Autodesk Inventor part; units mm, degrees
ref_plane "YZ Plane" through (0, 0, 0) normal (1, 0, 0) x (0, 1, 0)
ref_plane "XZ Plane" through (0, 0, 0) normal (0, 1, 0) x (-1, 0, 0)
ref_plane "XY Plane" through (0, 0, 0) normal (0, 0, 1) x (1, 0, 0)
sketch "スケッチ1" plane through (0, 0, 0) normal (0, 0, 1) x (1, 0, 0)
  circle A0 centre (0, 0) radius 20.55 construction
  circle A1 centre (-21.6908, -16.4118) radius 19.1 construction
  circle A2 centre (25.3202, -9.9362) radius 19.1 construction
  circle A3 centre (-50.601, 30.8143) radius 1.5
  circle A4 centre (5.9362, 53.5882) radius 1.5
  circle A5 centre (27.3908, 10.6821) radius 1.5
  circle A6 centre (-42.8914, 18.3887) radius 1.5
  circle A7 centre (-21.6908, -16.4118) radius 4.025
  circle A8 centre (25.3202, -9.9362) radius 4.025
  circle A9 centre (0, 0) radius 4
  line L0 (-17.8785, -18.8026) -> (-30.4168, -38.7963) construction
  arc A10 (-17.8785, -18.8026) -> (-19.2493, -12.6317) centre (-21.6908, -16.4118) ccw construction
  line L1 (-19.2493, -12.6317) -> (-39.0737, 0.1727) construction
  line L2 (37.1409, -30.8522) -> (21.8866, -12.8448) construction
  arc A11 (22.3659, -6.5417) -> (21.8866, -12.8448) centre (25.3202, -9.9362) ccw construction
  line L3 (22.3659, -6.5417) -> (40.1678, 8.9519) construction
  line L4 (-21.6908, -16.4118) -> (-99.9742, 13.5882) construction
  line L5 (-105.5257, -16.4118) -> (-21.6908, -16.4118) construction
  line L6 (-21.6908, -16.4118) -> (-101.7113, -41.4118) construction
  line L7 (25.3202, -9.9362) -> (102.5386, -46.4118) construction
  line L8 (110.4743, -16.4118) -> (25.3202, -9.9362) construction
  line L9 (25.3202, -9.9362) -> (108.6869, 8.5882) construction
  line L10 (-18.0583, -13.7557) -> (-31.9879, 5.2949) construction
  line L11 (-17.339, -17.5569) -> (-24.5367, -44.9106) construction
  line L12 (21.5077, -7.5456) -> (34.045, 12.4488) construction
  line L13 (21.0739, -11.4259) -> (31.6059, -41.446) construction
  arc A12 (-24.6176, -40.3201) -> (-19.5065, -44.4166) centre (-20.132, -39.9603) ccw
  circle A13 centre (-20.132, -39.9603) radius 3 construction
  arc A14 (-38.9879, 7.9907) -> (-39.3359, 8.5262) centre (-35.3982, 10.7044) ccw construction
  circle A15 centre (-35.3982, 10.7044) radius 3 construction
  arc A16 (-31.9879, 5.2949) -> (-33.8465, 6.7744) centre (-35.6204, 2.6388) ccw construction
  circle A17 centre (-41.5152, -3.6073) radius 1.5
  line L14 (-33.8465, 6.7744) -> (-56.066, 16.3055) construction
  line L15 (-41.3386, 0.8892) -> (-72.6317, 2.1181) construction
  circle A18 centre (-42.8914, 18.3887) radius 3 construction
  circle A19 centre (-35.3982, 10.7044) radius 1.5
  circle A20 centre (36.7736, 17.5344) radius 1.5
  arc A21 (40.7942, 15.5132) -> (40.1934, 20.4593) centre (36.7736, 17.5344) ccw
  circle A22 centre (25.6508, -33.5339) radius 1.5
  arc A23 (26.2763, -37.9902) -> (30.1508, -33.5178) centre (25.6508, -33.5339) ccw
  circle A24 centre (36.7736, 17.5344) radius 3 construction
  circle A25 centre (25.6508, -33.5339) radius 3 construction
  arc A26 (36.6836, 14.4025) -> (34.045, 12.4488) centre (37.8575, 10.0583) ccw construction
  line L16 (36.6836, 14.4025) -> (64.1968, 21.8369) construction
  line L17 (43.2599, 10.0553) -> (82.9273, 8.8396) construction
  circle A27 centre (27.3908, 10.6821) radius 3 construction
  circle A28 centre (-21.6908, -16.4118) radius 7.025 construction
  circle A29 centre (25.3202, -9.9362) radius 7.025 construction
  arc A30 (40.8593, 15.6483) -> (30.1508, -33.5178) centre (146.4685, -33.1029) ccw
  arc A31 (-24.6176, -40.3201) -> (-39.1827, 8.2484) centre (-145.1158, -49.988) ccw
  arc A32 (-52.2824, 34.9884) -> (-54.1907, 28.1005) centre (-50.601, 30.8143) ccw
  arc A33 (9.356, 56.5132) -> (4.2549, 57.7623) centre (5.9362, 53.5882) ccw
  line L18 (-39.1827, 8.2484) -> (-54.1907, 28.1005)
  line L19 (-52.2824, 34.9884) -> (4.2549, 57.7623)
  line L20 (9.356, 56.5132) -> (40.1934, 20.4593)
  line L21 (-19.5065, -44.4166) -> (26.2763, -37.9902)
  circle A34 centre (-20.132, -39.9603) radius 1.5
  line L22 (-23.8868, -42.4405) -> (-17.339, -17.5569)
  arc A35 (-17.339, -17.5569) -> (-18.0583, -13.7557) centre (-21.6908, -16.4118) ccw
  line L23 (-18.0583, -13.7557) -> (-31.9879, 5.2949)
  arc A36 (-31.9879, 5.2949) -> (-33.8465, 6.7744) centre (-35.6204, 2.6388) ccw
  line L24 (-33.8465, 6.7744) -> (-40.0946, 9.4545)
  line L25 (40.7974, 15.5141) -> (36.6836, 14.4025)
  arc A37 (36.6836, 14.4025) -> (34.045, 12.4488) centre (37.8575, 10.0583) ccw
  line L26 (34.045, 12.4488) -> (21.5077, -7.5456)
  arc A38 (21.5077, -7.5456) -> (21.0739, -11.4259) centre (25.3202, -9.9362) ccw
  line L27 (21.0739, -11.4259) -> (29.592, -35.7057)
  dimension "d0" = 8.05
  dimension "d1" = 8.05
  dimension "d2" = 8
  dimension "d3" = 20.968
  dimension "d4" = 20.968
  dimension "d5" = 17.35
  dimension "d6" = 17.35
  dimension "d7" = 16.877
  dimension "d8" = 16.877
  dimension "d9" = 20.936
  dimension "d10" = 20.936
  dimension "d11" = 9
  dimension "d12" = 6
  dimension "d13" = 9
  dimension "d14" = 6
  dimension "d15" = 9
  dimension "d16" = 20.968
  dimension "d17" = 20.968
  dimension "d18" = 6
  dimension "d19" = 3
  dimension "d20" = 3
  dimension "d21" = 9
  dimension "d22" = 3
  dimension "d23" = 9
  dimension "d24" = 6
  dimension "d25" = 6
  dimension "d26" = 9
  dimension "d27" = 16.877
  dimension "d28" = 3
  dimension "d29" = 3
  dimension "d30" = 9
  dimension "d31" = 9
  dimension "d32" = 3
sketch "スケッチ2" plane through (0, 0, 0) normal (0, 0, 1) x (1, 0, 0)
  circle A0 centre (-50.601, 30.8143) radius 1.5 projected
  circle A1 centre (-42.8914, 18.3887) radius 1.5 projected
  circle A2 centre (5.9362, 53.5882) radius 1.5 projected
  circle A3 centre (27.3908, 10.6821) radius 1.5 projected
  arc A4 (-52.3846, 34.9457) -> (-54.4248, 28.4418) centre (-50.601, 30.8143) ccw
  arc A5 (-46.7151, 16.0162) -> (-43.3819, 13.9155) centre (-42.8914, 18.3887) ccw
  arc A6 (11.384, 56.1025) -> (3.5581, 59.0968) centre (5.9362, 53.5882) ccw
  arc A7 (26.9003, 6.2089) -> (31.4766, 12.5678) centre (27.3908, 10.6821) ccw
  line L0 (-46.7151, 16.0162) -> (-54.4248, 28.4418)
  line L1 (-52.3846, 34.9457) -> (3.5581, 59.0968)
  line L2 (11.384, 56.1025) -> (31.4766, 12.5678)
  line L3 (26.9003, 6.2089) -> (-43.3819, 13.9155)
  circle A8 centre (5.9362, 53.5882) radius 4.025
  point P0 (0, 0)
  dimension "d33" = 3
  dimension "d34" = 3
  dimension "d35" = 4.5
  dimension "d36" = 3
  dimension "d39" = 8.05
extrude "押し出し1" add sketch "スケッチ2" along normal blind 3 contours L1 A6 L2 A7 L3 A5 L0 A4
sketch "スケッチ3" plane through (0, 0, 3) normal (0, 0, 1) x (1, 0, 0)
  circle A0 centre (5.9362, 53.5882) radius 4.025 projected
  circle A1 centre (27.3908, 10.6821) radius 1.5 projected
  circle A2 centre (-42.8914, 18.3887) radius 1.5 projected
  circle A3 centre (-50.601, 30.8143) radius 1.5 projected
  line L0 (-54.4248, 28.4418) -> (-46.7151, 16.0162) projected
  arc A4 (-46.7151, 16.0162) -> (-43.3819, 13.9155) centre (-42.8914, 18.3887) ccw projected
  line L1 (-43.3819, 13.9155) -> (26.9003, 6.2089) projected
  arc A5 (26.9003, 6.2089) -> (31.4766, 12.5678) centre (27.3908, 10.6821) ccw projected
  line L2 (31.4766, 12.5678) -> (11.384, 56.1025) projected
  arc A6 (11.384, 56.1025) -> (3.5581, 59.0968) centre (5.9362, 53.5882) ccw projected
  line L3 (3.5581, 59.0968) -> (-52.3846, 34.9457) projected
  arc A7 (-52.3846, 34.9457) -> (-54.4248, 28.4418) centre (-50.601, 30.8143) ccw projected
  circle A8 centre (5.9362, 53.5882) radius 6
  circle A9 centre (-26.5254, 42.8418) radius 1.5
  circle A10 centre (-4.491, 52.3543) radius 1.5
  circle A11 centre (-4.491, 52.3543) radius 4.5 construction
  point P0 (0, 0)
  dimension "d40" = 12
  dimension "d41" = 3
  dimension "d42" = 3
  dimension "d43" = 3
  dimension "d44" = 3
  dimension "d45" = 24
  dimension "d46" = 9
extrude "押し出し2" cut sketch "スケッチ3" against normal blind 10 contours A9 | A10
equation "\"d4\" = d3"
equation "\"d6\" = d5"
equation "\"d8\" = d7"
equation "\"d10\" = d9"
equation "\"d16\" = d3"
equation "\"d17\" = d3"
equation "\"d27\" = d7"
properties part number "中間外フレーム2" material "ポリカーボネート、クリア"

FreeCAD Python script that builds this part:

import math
import FreeCAD as App
import Part
import Sketcher

doc = App.newDocument("Part")
params = doc.addObject("Spreadsheet::Sheet", "Params")
for row, (alias, value) in enumerate([
    ("sketch1_diameter", "3 mm"),
    ("sketch1_diameter2", "3 mm"),
    ("sketch1_diameter3", "3 mm"),
    ("sketch1_radius", "4.5 mm"),
    ("sketch1_radius2", "4.5 mm"),
    ("pad1_length", "3 mm"),
    ("sketch2_diameter", "3 mm"),
    ("pocket1_length", "10 mm"),
], start=1):
    params.set(f"A{row}", alias)
    params.set(f"B{row}", "=" + value)
    params.setAlias(f"B{row}", alias)

body = doc.addObject("PartDesign::Body", "Body")

# Sketch on XY plane
sketch1 = body.newObject("Sketcher::SketchObject", "Sketch")
sketch1.AttachmentSupport = (doc.getObject("XY_Plane"), [""])
sketch1.MapMode = "FlatFace"
sketch1.addGeometry([
    Part.LineSegment(App.Vector(3.5581, 59.0968, 0), App.Vector(-52.3846, 34.9457, 0)),  # 0
    Part.ArcOfCircle(Part.Circle(App.Vector(-50.601, 30.8143, 0), App.Vector(0, 0, 1), 4.499966), math.radians(113.35073), math.radians(211.817785)),  # 1
    Part.LineSegment(App.Vector(-54.4248, 28.4418, 0), App.Vector(-46.7151, 16.0162, 0)),  # 2
    Part.ArcOfCircle(Part.Circle(App.Vector(-42.8914, 18.3887, 0), App.Vector(0, 0, 1), 4.499938), math.radians(-148.181544), math.radians(-96.257656)),  # 3
    Part.LineSegment(App.Vector(-43.3819, 13.9155, 0), App.Vector(26.9003, 6.2089, 0)),  # 4
    Part.ArcOfCircle(Part.Circle(App.Vector(27.3908, 10.6821, 0), App.Vector(0, 0, 1), 4.500012), math.radians(-96.257656), math.radians(24.774518)),  # 5
    Part.LineSegment(App.Vector(31.4766, 12.5678, 0), App.Vector(11.384, 56.1025, 0)),  # 6
    Part.ArcOfCircle(Part.Circle(App.Vector(5.9362, 53.5882, 0), App.Vector(0, 0, 1), 6.000019), math.radians(24.77454), math.radians(113.350185)),  # 7
    Part.Circle(App.Vector(-42.8914, 18.3887, 0), App.Vector(0, 0, 1), 1.5),  # 8
    Part.Circle(App.Vector(-50.601, 30.8143, 0), App.Vector(0, 0, 1), 1.5),  # 9
    Part.Circle(App.Vector(27.3908, 10.6821, 0), App.Vector(0, 0, 1), 1.5),  # 10
    Part.Circle(App.Vector(5.9362, 53.5882, 0), App.Vector(0, 0, 1), 4.025),  # 11
], False)
sketch1.addConstraint([
    Sketcher.Constraint("Coincident", 0, 2, 1, 1),
    Sketcher.Constraint("Coincident", 1, 2, 2, 1),
    Sketcher.Constraint("Coincident", 2, 2, 3, 1),
    Sketcher.Constraint("Coincident", 3, 2, 4, 1),
    Sketcher.Constraint("Coincident", 4, 2, 5, 1),
    Sketcher.Constraint("Coincident", 5, 2, 6, 1),
    Sketcher.Constraint("Coincident", 6, 2, 7, 1),
    Sketcher.Constraint("Coincident", 7, 2, 0, 1),
    Sketcher.Constraint("Coincident", 8, 3, 3, 3),
    Sketcher.Constraint("Coincident", 9, 3, 1, 3),
    Sketcher.Constraint("Coincident", 10, 3, 5, 3),
    Sketcher.Constraint("Coincident", 11, 3, 7, 3),
    Sketcher.Constraint("Diameter", 8, 3.0),
    Sketcher.Constraint("Diameter", 9, 3.0),
    Sketcher.Constraint("Diameter", 10, 3.0),
    Sketcher.Constraint("Radius", 1, 4.5),
    Sketcher.Constraint("Radius", 3, 4.5),
    Sketcher.Constraint("Radius", 5, 4.5),
    Sketcher.Constraint("Diameter", 11, 8.05),
    Sketcher.Constraint("Radius", 7, 6.0),
    Sketcher.Constraint("Distance", 2, 14.623),
    Sketcher.Constraint("DistanceX", 1, 3, -1, 1, 50.601),
    Sketcher.Constraint("DistanceY", -1, 1, 5, 3, 10.682),
    Sketcher.Constraint("DistanceX", 2, 2, -1, 1, 46.715),
    Sketcher.Constraint("DistanceX", 3, 2, -1, 1, 43.382),
    Sketcher.Constraint("DistanceY", -1, 1, 4, 2, 6.209),
    Sketcher.Constraint("DistanceX", -1, 1, 6, 2, 11.384),
    Sketcher.Constraint("DistanceX", -1, 1, 7, 2, 3.558),
    Sketcher.Constraint("DistanceY", 5, 3, 7, 3, 42.906),
    Sketcher.Constraint("DistanceY", 1, 3, 7, 3, 22.774),
    Sketcher.Constraint("DistanceY", 3, 3, 0, 2, 16.557),
    Sketcher.Constraint("DistanceY", 2, 2, 1, 3, 14.798),
    Sketcher.Constraint("DistanceX", 7, 3, 4, 2, 20.964),
    Sketcher.Constraint("DistanceY", 4, 2, 5, 2, 6.359),
    Sketcher.Constraint("DistanceX", 7, 2, 7, 3, 2.378),
    Sketcher.Constraint("Distance", 0, 60.9333),
])
sketch1.setExpression("Constraints[12]", "Params.sketch1_diameter")
sketch1.setExpression("Constraints[13]", "Params.sketch1_diameter2")
sketch1.setExpression("Constraints[14]", "Params.sketch1_diameter3")
sketch1.setExpression("Constraints[15]", "Params.sketch1_radius")
sketch1.setExpression("Constraints[16]", "Params.sketch1_radius2")
pad1 = body.newObject("PartDesign::Pad", "Pad")
pad1.Profile = sketch1
pad1.setExpression("Length", "Params.pad1_length")

# Sketch on XY plane
sketch2 = body.newObject("Sketcher::SketchObject", "Sketch001")
sketch2.AttachmentSupport = (doc.getObject("XY_Plane"), [""])
sketch2.MapMode = "FlatFace"
sketch2.AttachmentOffset = App.Placement(App.Vector(0, 0, 3), App.Rotation())
sketch2.addGeometry([
    Part.Circle(App.Vector(-26.5, 42.8, 0), App.Vector(0, 0, 1), 1.5),
    Part.Circle(App.Vector(-4.5, 52.4, 0), App.Vector(0, 0, 1), 1.5),
], False)
sketch2.addConstraint([
    Sketcher.Constraint("Equal", 0, 1),
    Sketcher.Constraint("Diameter", 0, 3.0),
    Sketcher.Constraint("DistanceX", 1, 3, -1, 1, 4.491),
    Sketcher.Constraint("DistanceX", 0, 3, -1, 1, 26.5254),
    Sketcher.Constraint("DistanceY", -1, 1, 0, 3, 42.8418),
    Sketcher.Constraint("DistanceY", -1, 1, 1, 3, 52.3543),
])
sketch2.setExpression("Constraints[1]", "Params.sketch2_diameter")
pocket1 = body.newObject("PartDesign::Pocket", "Pocket")
pocket1.Profile = sketch2
pocket1.setExpression("Length", "Params.pocket1_length")

doc.recompute()
